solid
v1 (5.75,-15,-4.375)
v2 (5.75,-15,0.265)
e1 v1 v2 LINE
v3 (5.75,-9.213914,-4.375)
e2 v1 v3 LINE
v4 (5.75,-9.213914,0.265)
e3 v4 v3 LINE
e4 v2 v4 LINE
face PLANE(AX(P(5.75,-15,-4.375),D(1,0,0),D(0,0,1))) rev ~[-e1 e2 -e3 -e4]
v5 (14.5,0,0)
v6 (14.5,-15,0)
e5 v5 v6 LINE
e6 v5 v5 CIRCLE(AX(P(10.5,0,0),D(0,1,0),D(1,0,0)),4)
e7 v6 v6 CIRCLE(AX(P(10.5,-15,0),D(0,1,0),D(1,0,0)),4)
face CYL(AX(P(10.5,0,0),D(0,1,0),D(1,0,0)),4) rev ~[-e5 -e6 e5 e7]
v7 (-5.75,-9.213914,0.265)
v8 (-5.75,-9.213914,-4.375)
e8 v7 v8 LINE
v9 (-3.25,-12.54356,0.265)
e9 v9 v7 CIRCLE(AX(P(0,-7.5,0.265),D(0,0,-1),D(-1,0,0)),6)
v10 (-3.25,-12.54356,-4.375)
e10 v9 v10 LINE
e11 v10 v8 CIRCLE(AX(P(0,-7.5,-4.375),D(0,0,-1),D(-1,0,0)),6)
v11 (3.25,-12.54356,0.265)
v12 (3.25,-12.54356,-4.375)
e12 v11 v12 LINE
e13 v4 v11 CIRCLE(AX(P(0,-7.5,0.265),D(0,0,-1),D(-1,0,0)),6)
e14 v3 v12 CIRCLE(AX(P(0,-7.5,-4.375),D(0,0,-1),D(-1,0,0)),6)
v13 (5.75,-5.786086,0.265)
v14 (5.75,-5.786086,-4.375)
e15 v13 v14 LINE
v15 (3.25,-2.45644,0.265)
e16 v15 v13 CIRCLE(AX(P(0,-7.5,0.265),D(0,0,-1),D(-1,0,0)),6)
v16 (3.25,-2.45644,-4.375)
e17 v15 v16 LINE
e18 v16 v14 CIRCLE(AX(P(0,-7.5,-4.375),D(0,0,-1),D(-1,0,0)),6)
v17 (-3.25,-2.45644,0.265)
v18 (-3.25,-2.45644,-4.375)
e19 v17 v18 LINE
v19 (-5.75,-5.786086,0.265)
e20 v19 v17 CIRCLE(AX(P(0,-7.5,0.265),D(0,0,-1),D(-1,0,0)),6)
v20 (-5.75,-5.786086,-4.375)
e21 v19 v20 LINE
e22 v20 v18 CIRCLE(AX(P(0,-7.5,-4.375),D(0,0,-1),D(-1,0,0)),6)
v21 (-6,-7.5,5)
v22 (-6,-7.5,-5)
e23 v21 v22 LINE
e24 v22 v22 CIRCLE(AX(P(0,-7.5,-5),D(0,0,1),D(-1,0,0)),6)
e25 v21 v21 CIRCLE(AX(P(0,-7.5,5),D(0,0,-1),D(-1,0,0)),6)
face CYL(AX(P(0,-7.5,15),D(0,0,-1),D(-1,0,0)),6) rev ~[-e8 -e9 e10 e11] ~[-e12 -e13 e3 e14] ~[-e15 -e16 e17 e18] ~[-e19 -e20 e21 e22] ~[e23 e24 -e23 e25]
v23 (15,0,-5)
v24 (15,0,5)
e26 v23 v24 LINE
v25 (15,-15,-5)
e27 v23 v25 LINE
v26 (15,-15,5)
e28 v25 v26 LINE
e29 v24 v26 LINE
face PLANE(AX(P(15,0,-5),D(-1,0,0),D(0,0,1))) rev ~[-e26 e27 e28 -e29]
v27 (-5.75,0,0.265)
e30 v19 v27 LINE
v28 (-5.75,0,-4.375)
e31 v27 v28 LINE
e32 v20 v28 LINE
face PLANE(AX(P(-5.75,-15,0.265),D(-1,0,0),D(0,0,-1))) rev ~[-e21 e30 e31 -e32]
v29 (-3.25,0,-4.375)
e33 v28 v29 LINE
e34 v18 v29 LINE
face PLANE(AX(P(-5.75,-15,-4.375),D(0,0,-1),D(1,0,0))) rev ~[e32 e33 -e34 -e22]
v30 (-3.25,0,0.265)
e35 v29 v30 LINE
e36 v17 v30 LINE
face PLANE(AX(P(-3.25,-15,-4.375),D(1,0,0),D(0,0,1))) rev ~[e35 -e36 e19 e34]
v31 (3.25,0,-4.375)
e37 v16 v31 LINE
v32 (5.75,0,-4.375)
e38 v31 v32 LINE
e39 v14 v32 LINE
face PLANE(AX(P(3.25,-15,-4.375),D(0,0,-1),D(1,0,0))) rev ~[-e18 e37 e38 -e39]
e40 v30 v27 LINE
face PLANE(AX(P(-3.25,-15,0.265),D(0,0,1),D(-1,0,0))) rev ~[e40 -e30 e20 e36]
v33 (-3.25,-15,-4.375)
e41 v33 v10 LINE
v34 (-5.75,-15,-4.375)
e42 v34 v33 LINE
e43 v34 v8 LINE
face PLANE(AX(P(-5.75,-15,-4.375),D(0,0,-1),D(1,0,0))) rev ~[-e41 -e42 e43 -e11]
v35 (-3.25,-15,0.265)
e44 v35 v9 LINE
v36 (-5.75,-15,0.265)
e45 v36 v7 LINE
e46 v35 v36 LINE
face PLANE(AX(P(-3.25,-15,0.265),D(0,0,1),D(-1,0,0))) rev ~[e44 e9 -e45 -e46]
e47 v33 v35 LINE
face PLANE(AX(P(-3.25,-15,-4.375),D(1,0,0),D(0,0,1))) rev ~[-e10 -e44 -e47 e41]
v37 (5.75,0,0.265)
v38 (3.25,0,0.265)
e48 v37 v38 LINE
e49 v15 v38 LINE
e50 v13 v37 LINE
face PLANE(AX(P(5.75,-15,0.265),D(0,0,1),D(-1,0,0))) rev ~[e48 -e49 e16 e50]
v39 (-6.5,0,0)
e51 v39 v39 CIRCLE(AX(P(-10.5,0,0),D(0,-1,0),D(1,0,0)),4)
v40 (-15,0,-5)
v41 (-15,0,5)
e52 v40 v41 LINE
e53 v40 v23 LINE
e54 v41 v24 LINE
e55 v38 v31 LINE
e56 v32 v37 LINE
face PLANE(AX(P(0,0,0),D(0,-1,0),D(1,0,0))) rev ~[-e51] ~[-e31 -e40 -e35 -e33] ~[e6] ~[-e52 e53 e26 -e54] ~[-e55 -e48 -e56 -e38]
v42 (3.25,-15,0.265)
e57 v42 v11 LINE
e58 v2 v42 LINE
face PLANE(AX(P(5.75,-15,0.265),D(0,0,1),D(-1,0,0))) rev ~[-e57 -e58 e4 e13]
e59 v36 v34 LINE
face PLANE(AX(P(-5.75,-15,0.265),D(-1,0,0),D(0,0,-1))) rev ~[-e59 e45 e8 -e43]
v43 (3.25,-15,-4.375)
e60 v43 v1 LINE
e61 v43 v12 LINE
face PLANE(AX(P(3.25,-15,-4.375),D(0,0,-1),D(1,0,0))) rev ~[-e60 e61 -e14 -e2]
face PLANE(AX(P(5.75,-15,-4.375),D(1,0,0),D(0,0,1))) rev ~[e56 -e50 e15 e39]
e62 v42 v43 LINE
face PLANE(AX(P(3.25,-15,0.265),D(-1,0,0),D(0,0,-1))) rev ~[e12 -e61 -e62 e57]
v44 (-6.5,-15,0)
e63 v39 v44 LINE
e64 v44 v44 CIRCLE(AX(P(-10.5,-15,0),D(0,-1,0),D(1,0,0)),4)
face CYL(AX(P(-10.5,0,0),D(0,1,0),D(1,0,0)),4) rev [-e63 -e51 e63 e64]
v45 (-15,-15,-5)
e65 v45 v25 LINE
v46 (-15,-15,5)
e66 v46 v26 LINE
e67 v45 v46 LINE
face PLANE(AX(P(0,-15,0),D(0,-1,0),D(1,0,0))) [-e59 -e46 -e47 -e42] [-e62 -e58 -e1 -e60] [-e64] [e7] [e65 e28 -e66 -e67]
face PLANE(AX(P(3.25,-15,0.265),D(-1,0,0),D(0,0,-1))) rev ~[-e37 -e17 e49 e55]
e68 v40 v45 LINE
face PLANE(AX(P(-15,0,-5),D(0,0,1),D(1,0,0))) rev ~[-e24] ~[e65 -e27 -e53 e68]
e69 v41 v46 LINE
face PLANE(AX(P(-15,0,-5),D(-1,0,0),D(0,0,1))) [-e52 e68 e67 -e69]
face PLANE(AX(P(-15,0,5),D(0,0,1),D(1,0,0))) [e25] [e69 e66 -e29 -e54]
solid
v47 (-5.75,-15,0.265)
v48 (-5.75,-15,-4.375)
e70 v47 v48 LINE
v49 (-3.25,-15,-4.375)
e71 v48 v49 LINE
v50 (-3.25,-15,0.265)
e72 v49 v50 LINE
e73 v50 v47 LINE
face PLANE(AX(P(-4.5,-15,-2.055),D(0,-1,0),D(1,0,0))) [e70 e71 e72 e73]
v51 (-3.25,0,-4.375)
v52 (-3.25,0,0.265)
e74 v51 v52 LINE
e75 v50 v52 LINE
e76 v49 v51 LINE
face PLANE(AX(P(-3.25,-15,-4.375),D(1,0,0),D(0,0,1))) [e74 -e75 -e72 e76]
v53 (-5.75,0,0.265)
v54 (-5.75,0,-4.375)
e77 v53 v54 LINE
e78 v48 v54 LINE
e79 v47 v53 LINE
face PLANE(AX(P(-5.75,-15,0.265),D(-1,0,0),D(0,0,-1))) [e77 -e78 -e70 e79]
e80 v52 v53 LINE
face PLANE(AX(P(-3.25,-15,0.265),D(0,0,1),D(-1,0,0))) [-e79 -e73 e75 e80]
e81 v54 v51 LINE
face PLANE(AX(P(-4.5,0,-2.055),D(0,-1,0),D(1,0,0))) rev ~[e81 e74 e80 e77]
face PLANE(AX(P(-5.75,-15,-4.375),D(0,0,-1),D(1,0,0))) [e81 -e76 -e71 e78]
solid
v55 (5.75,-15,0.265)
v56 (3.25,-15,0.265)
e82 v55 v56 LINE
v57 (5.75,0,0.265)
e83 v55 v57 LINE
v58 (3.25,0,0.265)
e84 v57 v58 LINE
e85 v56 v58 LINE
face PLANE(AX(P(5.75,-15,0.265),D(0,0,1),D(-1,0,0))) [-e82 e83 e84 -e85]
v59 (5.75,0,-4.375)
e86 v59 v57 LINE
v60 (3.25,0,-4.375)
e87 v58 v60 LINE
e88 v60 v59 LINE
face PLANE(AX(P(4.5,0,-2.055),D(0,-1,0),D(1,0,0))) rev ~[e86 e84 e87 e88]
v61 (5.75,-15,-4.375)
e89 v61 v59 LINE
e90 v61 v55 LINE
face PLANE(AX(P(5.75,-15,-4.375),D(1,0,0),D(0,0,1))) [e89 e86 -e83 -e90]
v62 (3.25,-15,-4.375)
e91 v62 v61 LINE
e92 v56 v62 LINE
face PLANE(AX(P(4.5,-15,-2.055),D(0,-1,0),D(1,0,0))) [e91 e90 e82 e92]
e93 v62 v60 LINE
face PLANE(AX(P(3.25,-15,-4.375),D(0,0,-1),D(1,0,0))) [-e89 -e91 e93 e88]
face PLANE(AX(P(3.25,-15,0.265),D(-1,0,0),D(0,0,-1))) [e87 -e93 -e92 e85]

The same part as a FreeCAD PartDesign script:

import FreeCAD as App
import Part
import Sketcher

V = App.Vector
Q = App.Units.Quantity


def add_polygon(sketch, points):
    """Adds a closed chain of lines whose ends are joined by coincident constraints."""
    first, n = sketch.GeometryCount, len(points)
    for a, b in zip(points, points[1:] + points[:1]):
        sketch.addGeometry(Part.LineSegment(App.Vector(*a, 0), App.Vector(*b, 0)), False)
    for i in range(n):
        sketch.addConstraint(Sketcher.Constraint("Coincident", first + i, 2, first + (i + 1) % n, 1))

doc = App.newDocument("Part")
body = doc.addObject("PartDesign::Body", "Body")

# Sketch on XZ plane
sketch1 = doc.addObject("Sketcher::SketchObject", "Sketch")
body.addObject(sketch1)
sketch1.AttachmentSupport = (doc.XZ_Plane, [""])
sketch1.MapMode = "FlatFace"
add_polygon(sketch1, [(-15, 5), (-15, -5), (15, -5), (15, 5)])  # lines 0-3
sketch1.addGeometry(Part.Circle(V(-10.5, 0, 0), V(0, 0, 1), 4), False)  # 4
sketch1.addGeometry(Part.Circle(V(10.5, 0, 0), V(0, 0, 1), 4), False)  # 5
sketch1.addConstraint([
    Sketcher.Constraint("Vertical", 0),
    Sketcher.Constraint("Horizontal", 1),
    Sketcher.Constraint("Vertical", 2),
    Sketcher.Constraint("Horizontal", 3),
    Sketcher.Constraint("Equal", 4, 5),
    Sketcher.Constraint("Symmetric", 4, 3, 5, 3, -1, 1),
    Sketcher.Constraint("Symmetric", 0, 2, 2, 2, -1, 1),
    Sketcher.Constraint("PointOnObject", 4, 3, -1),
    Sketcher.Constraint("Diameter", 4, Q("8 mm")),
    Sketcher.Constraint("DistanceX", 1, 1, 1, 2, Q("30 mm")),
    Sketcher.Constraint("DistanceY", 0, 2, 0, 1, Q("10 mm")),
    Sketcher.Constraint("DistanceX", 4, 3, 5, 3, Q("21 mm")),
])
pad1 = doc.addObject("PartDesign::Pad", "Pad")
body.addObject(pad1)
pad1.Profile = sketch1
pad1.Length = 15

# Sketch on XY plane
sketch2 = doc.addObject("Sketcher::SketchObject", "Sketch001")
body.addObject(sketch2)
sketch2.AttachmentSupport = (doc.XY_Plane, [""])
sketch2.MapMode = "FlatFace"
sketch2.AttachmentOffset = App.Placement(V(0, 0, 5), App.Rotation())
sketch2.addGeometry(Part.Circle(V(0, -8, 0), V(0, 0, 1), 6), False)
sketch2.addConstraint([
    Sketcher.Constraint("PointOnObject", 0, 3, -2),
    Sketcher.Constraint("Diameter", 0, Q("12 mm")),
    Sketcher.Constraint("DistanceY", 0, 3, -1, 1, Q("7.5 mm")),
])
doc.recompute()
hole = doc.addObject("PartDesign::Hole", "Hole")
body.addObject(hole)
hole.Profile = sketch2
hole.ThreadType = "None"
hole.Diameter = 12
hole.DepthType = "Dimension"
hole.Depth = 10
hole.DrillPoint = "Angled"
hole.DrillPointAngle = 118

# Sketch on XZ plane
sketch3 = doc.addObject("Sketcher::SketchObject", "Sketch002")
body.addObject(sketch3)
sketch3.AttachmentSupport = (doc.XZ_Plane, [""])
sketch3.MapMode = "FlatFace"
sketch3.AttachmentOffset = App.Placement(V(0, 0, 15), App.Rotation())
add_polygon(sketch3, [(-5.8, -4.4), (-3.2, -4.4), (-3.2, 0.3), (-5.8, 0.3)])  # lines 0-3
add_polygon(sketch3, [(3.2, -4.4), (5.8, -4.4), (5.8, 0.3), (3.2, 0.3)])  # lines 4-7
sketch3.addConstraint([
    Sketcher.Constraint("Horizontal", 0),
    Sketcher.Constraint("Vertical", 1),
    Sketcher.Constraint("Horizontal", 2),
    Sketcher.Constraint("Vertical", 3),
    Sketcher.Constraint("Horizontal", 4),
    Sketcher.Constraint("Vertical", 5),
    Sketcher.Constraint("Horizontal", 6),
    Sketcher.Constraint("Vertical", 7),
    Sketcher.Constraint("Symmetric", 3, 2, 4, 2, -2),
    Sketcher.Constraint("Symmetric", 1, 2, 6, 2, -2),
    Sketcher.Constraint("DistanceX", 0, 1, 0, 2, Q("2.5 mm")),
    Sketcher.Constraint("DistanceX", 0, 2, 4, 2, Q("9 mm")),
    Sketcher.Constraint("DistanceY", 1, 1, 1, 2, Q("4.64 mm")),
    Sketcher.Constraint("DistanceY", 0, 2, -1, 1, Q("4.375 mm")),
])
pocket1 = doc.addObject("PartDesign::Pocket", "Pocket")
body.addObject(pocket1)
pocket1.Profile = sketch3
pocket1.Length = 25
body2 = doc.addObject("PartDesign::Body", "Body001")

# Sketch on XZ plane
sketch4 = doc.addObject("Sketcher::SketchObject", "Sketch003")
body2.addObject(sketch4)
sketch4.AttachmentSupport = (doc.getObject("XZ_Plane001"), [""])
sketch4.MapMode = "FlatFace"
sketch4.AttachmentOffset = App.Placement(V(0, 0, 15), App.Rotation())
add_polygon(sketch4, [(-5.8, -4.4), (-3.2, -4.4), (-3.2, 0.3), (-5.8, 0.3)])  # lines 0-3
sketch4.addConstraint([
    Sketcher.Constraint("Horizontal", 0),
    Sketcher.Constraint("Vertical", 1),
    Sketcher.Constraint("Horizontal", 2),
    Sketcher.Constraint("Vertical", 3),
    Sketcher.Constraint("DistanceX", 0, 1, 0, 2, Q("2.5 mm")),
    Sketcher.Constraint("DistanceY", 1, 1, 1, 2, Q("4.64 mm")),
    Sketcher.Constraint("DistanceX", 0, 2, -1, 1, Q("3.25 mm")),
    Sketcher.Constraint("DistanceY", 0, 2, -1, 1, Q("4.375 mm")),
])
pad2 = doc.addObject("PartDesign::Pad", "Pad001")
body2.addObject(pad2)
pad2.Profile = sketch4
pad2.Length = 15
pad2.Reversed = True
body3 = doc.addObject("PartDesign::Body", "Body002")

# Sketch on XZ plane
sketch5 = doc.addObject("Sketcher::SketchObject", "Sketch004")
body3.addObject(sketch5)
sketch5.AttachmentSupport = (doc.getObject("XZ_Plane002"), [""])
sketch5.MapMode = "FlatFace"
sketch5.AttachmentOffset = App.Placement(V(0, 0, 15), App.Rotation())
add_polygon(sketch5, [(3.2, -4.4), (5.8, -4.4), (5.8, 0.3), (3.2, 0.3)])  # lines 0-3
sketch5.addConstraint([
    Sketcher.Constraint("Horizontal", 0),
    Sketcher.Constraint("Vertical", 1),
    Sketcher.Constraint("Horizontal", 2),
    Sketcher.Constraint("Vertical", 3),
    Sketcher.Constraint("DistanceX", 0, 1, 0, 2, Q("2.5 mm")),
    Sketcher.Constraint("DistanceY", 1, 1, 1, 2, Q("4.64 mm")),
    Sketcher.Constraint("DistanceX", -1, 1, 0, 2, Q("5.75 mm")),
    Sketcher.Constraint("DistanceY", 0, 2, -1, 1, Q("4.375 mm")),
])
pad3 = doc.addObject("PartDesign::Pad", "Pad002")
body3.addObject(pad3)
pad3.Profile = sketch5
pad3.Length = 15
pad3.Reversed = True

doc.recompute()
